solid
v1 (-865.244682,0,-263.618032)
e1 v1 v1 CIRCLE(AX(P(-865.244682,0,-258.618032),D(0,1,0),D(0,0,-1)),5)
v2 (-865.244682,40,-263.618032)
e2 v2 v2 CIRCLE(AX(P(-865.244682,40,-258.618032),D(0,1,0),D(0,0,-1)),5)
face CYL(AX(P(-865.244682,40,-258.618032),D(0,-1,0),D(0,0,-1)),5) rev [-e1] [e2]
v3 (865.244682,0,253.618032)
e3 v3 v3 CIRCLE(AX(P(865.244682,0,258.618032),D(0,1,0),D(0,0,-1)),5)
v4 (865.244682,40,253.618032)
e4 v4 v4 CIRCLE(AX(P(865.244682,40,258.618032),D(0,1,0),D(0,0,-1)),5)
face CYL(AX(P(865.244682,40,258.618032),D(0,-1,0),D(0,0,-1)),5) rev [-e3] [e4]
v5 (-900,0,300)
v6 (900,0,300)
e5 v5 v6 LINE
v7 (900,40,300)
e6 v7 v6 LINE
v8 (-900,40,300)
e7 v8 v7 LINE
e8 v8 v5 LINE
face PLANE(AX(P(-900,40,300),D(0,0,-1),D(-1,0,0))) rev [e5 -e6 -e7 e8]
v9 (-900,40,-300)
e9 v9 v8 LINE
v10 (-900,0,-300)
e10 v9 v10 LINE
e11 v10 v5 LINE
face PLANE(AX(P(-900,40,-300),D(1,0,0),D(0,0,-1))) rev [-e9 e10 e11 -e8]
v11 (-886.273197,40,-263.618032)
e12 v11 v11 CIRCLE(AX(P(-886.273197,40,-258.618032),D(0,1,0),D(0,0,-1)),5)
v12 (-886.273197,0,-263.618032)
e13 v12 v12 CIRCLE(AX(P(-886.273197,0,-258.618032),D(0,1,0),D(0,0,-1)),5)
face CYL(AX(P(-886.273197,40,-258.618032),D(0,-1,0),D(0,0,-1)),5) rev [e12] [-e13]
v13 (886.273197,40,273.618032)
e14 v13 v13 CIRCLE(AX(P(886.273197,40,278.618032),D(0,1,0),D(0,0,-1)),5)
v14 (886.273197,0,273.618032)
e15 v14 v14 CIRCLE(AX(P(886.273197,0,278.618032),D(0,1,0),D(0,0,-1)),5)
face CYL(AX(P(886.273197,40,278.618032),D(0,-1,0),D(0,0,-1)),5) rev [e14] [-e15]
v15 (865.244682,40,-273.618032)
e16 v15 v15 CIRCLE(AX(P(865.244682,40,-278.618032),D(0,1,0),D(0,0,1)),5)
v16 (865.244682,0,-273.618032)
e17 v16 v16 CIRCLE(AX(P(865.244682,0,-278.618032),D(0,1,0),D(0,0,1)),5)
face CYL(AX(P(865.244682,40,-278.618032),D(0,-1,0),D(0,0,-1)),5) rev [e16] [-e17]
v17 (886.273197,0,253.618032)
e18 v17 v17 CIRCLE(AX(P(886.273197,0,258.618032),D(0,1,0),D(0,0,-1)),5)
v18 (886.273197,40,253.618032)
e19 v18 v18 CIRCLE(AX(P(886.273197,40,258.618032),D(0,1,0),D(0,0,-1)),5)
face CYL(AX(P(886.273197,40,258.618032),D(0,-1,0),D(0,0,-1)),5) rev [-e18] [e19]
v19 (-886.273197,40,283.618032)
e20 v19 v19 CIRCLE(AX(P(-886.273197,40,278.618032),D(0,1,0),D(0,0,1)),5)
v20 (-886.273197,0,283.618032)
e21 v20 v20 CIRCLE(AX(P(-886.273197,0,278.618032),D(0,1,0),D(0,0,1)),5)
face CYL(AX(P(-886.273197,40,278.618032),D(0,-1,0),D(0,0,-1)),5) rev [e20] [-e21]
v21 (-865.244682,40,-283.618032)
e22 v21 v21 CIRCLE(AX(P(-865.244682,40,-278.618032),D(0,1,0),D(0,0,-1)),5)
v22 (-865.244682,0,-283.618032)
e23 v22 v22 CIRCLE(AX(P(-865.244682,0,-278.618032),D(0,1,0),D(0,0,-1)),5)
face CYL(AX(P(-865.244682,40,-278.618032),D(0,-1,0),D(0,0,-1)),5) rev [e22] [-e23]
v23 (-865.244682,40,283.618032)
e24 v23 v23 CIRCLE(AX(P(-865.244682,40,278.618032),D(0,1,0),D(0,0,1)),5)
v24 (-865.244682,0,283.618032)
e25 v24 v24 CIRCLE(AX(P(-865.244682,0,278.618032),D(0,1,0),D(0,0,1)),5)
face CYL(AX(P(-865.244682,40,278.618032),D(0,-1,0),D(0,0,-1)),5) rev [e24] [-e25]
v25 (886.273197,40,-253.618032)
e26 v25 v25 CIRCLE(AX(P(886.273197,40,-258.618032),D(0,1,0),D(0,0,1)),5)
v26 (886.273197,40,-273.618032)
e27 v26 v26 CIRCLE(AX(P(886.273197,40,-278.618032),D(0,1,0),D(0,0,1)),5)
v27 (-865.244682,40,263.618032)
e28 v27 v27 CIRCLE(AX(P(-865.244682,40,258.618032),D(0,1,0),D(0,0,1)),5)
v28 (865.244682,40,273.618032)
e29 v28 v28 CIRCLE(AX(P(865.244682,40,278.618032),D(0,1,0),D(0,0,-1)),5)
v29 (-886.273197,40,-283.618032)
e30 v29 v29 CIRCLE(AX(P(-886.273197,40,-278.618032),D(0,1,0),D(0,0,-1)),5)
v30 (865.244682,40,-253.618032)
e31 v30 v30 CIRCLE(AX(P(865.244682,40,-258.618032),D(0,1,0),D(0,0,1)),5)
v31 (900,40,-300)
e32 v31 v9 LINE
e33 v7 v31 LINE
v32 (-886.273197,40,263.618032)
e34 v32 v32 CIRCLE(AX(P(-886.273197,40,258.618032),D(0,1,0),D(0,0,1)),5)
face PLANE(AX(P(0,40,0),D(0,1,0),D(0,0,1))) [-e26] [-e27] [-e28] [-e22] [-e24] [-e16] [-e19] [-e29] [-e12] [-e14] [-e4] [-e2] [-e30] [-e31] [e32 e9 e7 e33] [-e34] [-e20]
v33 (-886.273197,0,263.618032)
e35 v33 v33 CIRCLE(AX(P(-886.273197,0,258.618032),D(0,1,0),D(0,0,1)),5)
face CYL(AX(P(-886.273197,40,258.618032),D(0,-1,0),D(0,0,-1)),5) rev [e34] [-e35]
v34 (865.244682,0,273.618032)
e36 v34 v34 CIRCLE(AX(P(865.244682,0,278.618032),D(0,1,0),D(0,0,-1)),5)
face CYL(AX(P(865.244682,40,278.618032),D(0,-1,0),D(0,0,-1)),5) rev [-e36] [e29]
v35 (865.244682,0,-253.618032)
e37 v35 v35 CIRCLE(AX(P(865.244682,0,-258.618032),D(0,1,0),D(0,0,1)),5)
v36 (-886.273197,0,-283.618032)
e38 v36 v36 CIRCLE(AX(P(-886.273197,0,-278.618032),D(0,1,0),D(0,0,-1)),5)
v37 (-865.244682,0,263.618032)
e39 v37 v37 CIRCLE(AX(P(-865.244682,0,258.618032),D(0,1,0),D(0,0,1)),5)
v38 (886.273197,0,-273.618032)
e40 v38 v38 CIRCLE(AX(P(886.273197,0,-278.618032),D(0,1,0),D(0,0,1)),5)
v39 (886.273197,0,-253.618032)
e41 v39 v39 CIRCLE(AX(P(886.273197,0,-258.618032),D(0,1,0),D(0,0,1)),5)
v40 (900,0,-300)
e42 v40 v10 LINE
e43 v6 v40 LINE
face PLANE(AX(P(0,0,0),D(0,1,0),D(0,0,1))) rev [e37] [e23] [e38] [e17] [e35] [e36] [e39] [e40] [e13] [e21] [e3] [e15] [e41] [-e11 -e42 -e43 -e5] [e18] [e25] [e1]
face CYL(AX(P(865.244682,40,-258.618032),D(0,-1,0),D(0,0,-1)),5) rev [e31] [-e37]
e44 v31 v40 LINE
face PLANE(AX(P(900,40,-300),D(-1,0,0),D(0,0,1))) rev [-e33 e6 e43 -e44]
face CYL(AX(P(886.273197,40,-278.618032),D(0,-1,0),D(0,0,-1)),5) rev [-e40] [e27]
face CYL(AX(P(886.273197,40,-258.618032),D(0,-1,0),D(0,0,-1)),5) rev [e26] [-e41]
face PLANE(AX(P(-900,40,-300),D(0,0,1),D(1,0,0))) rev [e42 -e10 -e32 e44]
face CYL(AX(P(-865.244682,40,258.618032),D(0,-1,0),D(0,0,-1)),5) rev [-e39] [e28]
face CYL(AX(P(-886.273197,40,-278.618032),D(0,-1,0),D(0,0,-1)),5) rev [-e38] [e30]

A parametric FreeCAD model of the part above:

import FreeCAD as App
import Part
import Sketcher

V = App.Vector
Q = App.Units.Quantity


def add_polygon(sketch, points):
    """Adds a closed chain of lines whose ends are joined by coincident constraints."""
    first, n = sketch.GeometryCount, len(points)
    for a, b in zip(points, points[1:] + points[:1]):
        sketch.addGeometry(Part.LineSegment(App.Vector(*a, 0), App.Vector(*b, 0)), False)
    for i in range(n):
        sketch.addConstraint(Sketcher.Constraint("Coincident", first + i, 2, first + (i + 1) % n, 1))

doc = App.newDocument("Part")
params = doc.addObject("Spreadsheet::Sheet", "Params")
for row, (alias, value) in enumerate([
    ("sketch1_diameter", "10 mm"),
    ("sketch1_width", "1800 mm"),
    ("sketch1_height", "600 mm"),
    ("pad1_length", "40 mm"),
], start=1):
    params.set(f"A{row}", alias)
    params.set(f"B{row}", "=" + value)
    params.setAlias(f"B{row}", alias)

body = doc.addObject("PartDesign::Body", "Body")

# Sketch on XZ plane
sketch1 = doc.addObject("Sketcher::SketchObject", "Sketch")
body.addObject(sketch1)
sketch1.AttachmentSupport = (doc.XZ_Plane, [""])
sketch1.MapMode = "FlatFace"
add_polygon(sketch1, [(-900, -300), (-900, 300), (900, 300), (900, -300)])  # lines 0-3
sketch1.addGeometry(Part.Circle(V(-886, 279, 0), V(0, 0, 1), 5), False)  # 4
sketch1.addGeometry(Part.Circle(V(-865, 279, 0), V(0, 0, 1), 5), False)  # 5
sketch1.addGeometry(Part.Circle(V(-886, 259, 0), V(0, 0, 1), 5), False)  # 6
sketch1.addGeometry(Part.Circle(V(-865, 259, 0), V(0, 0, 1), 5), False)  # 7
sketch1.addGeometry(Part.Circle(V(865, 279, 0), V(0, 0, 1), 5), False)  # 8
sketch1.addGeometry(Part.Circle(V(886, 279, 0), V(0, 0, 1), 5), False)  # 9
sketch1.addGeometry(Part.Circle(V(865, 259, 0), V(0, 0, 1), 5), False)  # 10
sketch1.addGeometry(Part.Circle(V(886, 259, 0), V(0, 0, 1), 5), False)  # 11
sketch1.addGeometry(Part.Circle(V(-886, -259, 0), V(0, 0, 1), 5), False)  # 12
sketch1.addGeometry(Part.Circle(V(-865, -259, 0), V(0, 0, 1), 5), False)  # 13
sketch1.addGeometry(Part.Circle(V(-886, -279, 0), V(0, 0, 1), 5), False)  # 14
sketch1.addGeometry(Part.Circle(V(-865, -279, 0), V(0, 0, 1), 5), False)  # 15
sketch1.addGeometry(Part.Circle(V(865, -259, 0), V(0, 0, 1), 5), False)  # 16
sketch1.addGeometry(Part.Circle(V(886, -259, 0), V(0, 0, 1), 5), False)  # 17
sketch1.addGeometry(Part.Circle(V(865, -279, 0), V(0, 0, 1), 5), False)  # 18
sketch1.addGeometry(Part.Circle(V(886, -279, 0), V(0, 0, 1), 5), False)  # 19
sketch1.addConstraint([
    Sketcher.Constraint("Vertical", 0),
    Sketcher.Constraint("Horizontal", 1),
    Sketcher.Constraint("Vertical", 2),
    Sketcher.Constraint("Horizontal", 3),
    Sketcher.Constraint("Equal", 4, 5),
    Sketcher.Constraint("Equal", 5, 6),
    Sketcher.Constraint("Equal", 6, 7),
    Sketcher.Constraint("Equal", 7, 8),
    Sketcher.Constraint("Equal", 8, 9),
    Sketcher.Constraint("Equal", 9, 10),
    Sketcher.Constraint("Equal", 10, 11),
    Sketcher.Constraint("Equal", 11, 12),
    Sketcher.Constraint("Equal", 12, 13),
    Sketcher.Constraint("Equal", 13, 14),
    Sketcher.Constraint("Equal", 14, 15),
    Sketcher.Constraint("Equal", 15, 16),
    Sketcher.Constraint("Equal", 16, 17),
    Sketcher.Constraint("Equal", 17, 18),
    Sketcher.Constraint("Equal", 18, 19),
    Sketcher.Constraint("Symmetric", 11, 3, 12, 3, -1, 1),
    Sketcher.Constraint("Symmetric", 10, 3, 13, 3, -1, 1),
    Sketcher.Constraint("Symmetric", 9, 3, 14, 3, -1, 1),
    Sketcher.Constraint("Symmetric", 8, 3, 15, 3, -1, 1),
    Sketcher.Constraint("Symmetric", 7, 3, 16, 3, -1, 1),
    Sketcher.Constraint("Symmetric", 6, 3, 17, 3, -1, 1),
    Sketcher.Constraint("Symmetric", 5, 3, 18, 3, -1, 1),
    Sketcher.Constraint("Symmetric", 4, 3, 19, 3, -1, 1),
    Sketcher.Constraint("Symmetric", 0, 2, 2, 2, -1, 1),
    Sketcher.Constraint("Symmetric", 5, 3, 8, 3, -2),
    Sketcher.Constraint("Symmetric", 4, 3, 9, 3, -2),
    Sketcher.Constraint("Symmetric", 7, 3, 10, 3, -2),
    Sketcher.Constraint("Symmetric", 6, 3, 11, 3, -2),
    Sketcher.Constraint("Horizontal", 4, 3, 5, 3),
    Sketcher.Constraint("Horizontal", 6, 3, 7, 3),
    Sketcher.Constraint("Vertical", 4, 3, 6, 3),
    Sketcher.Constraint("Vertical", 5, 3, 7, 3),
    Sketcher.Constraint("Diameter", 4, Q("10 mm")),
    Sketcher.Constraint("DistanceX", 1, 1, 1, 2, Q("1800 mm")),
    Sketcher.Constraint("DistanceY", 0, 1, 0, 2, Q("600 mm")),
    Sketcher.Constraint("DistanceY", 6, 3, 4, 3, Q("20 mm")),
    Sketcher.Constraint("DistanceX", 5, 3, -1, 1, Q("865.244682 mm")),
    Sketcher.Constraint("DistanceX", 4, 3, 8, 3, Q("1751.517879 mm")),
    Sketcher.Constraint("DistanceY", -1, 1, 4, 3, Q("278.618032 mm")),
])
sketch1.setExpression("Constraints[40]", "Params.sketch1_diameter")
sketch1.setExpression("Constraints[41]", "Params.sketch1_width")
sketch1.setExpression("Constraints[42]", "Params.sketch1_height")
pad1 = doc.addObject("PartDesign::Pad", "Pad")
body.addObject(pad1)
pad1.Profile = sketch1
pad1.setExpression("Length", "Params.pad1_length")
pad1.Reversed = True

doc.recompute()
